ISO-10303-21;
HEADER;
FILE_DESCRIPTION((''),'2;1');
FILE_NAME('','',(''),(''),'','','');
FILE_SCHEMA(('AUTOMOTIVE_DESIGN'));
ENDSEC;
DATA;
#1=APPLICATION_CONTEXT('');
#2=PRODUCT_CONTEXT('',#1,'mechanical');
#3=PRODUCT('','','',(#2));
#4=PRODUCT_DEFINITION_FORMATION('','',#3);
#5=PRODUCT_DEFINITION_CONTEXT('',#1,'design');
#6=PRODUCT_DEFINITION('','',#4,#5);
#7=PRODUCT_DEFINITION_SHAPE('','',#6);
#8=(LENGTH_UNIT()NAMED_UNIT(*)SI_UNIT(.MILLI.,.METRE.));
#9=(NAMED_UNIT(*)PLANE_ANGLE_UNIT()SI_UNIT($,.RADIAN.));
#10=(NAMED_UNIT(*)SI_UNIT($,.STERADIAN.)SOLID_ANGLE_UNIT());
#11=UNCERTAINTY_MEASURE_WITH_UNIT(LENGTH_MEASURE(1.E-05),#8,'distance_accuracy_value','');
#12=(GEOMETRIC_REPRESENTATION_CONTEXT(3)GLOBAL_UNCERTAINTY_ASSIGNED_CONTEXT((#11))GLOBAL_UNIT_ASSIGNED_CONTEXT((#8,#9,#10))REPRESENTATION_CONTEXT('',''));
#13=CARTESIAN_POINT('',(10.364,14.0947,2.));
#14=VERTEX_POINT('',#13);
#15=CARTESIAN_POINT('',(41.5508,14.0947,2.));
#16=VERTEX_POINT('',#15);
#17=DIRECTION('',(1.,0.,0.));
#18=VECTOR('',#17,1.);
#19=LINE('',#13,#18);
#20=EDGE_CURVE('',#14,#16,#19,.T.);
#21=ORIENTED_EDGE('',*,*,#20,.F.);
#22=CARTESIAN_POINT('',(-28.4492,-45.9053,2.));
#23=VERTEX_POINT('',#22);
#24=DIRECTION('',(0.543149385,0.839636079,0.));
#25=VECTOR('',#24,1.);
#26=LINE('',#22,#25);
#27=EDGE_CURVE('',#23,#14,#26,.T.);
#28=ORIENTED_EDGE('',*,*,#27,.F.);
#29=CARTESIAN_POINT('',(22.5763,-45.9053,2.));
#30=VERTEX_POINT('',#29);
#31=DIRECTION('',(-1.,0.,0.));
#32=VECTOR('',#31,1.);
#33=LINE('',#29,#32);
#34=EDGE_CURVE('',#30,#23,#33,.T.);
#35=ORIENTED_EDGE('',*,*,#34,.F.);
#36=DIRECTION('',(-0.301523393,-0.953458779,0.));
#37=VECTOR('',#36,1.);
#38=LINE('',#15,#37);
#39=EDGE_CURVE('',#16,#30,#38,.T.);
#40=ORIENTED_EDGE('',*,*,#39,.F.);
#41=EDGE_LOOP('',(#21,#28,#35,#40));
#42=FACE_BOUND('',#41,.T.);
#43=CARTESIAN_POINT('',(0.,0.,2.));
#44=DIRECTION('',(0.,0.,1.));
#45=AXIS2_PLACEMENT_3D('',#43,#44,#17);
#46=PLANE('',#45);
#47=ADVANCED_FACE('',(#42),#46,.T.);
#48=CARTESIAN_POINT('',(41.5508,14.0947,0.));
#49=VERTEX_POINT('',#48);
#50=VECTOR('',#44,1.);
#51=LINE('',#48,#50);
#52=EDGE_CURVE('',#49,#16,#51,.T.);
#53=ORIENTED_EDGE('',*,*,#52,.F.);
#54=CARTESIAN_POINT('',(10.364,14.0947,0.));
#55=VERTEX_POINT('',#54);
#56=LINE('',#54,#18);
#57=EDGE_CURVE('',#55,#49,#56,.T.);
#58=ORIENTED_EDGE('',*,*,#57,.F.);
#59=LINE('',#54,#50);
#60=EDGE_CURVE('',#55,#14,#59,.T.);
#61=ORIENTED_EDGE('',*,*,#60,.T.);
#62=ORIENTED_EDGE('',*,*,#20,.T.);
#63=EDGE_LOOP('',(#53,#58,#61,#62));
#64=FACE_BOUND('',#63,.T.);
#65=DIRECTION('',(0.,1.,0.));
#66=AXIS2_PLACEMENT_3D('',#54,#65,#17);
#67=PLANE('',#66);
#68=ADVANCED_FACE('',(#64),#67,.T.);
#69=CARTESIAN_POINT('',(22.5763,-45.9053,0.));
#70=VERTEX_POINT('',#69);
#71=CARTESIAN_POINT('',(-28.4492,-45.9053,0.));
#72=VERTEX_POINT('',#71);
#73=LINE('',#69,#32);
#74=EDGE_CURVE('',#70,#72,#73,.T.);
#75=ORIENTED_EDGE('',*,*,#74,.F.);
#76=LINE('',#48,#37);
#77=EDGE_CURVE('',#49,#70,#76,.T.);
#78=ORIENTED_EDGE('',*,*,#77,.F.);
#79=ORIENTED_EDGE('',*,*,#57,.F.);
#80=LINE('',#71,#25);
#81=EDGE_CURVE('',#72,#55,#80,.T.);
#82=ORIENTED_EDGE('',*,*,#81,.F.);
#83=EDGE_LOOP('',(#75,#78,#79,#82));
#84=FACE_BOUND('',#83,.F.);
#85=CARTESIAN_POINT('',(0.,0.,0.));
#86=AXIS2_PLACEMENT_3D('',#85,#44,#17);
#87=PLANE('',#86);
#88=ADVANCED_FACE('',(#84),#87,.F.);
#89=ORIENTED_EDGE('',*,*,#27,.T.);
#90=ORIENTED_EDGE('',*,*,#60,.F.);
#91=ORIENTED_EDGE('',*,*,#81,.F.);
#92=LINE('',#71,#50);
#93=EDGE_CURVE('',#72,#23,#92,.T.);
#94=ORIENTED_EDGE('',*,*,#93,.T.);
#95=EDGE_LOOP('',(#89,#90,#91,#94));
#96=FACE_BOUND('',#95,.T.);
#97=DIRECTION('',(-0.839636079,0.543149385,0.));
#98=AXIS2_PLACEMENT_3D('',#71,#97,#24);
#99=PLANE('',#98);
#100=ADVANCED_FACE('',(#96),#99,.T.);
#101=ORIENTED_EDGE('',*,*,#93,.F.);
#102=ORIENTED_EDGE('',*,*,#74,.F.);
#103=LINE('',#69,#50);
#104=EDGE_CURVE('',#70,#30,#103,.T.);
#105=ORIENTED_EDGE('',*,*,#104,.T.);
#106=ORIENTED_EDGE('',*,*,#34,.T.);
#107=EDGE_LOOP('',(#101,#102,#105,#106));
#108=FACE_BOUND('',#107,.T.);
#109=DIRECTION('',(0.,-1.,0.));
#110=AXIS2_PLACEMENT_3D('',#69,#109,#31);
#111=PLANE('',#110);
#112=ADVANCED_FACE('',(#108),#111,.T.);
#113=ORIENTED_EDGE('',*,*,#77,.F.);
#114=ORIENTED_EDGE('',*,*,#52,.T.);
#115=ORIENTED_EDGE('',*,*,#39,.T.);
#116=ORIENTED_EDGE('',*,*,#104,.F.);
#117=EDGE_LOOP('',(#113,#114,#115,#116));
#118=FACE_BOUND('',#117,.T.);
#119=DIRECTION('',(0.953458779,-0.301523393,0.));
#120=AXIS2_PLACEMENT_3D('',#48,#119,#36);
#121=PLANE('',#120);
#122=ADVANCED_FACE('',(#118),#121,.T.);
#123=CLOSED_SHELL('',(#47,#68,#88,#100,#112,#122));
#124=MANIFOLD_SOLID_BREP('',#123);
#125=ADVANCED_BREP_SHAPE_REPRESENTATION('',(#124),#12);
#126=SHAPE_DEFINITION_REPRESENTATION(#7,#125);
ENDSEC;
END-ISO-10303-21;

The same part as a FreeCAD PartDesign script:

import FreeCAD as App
import Part
import Sketcher
Q = App.Units.Quantity


def add_polygon(sketch, points):
    """Adds a closed chain of lines whose ends are joined by coincident constraints."""
    first, n = sketch.GeometryCount, len(points)
    for a, b in zip(points, points[1:] + points[:1]):
        sketch.addGeometry(Part.LineSegment(App.Vector(*a, 0), App.Vector(*b, 0)), False)
    for i in range(n):
        sketch.addConstraint(Sketcher.Constraint("Coincident", first + i, 2, first + (i + 1) % n, 1))

doc = App.newDocument("Part")
body = doc.addObject("PartDesign::Body", "Body")

sketch1 = body.newObject("Sketcher::SketchObject", "Sketch")
sketch1.AttachmentSupport = (doc.getObject("XY_Plane"), [""])
sketch1.MapMode = "FlatFace"
add_polygon(sketch1, [(42, 14), (10, 14), (-28, -46), (23, -46)])
sketch1.addConstraint(Sketcher.Constraint("Horizontal", 0))
sketch1.addConstraint(Sketcher.Constraint("Horizontal", 2))
sketch1.addConstraint(Sketcher.Constraint("DistanceY", 1, 2, 0, 2, Q("60 mm")))
sketch1.addConstraint(Sketcher.Constraint("DistanceX", 1, 2, 3, 2, Q("70 mm")))
sketch1.addConstraint(Sketcher.Constraint("Angle", 3, Q("72.4509 deg")))
sketch1.addConstraint(Sketcher.Constraint("DistanceX", 0, 2, 0, 1, Q("31.1868 mm")))
sketch1.addConstraint(Sketcher.Constraint("DistanceX", -1, 1, 0, 2, Q("10.364 mm")))
sketch1.addConstraint(Sketcher.Constraint("DistanceY", -1, 1, 0, 2, Q("14.0947 mm")))
pad1 = body.newObject("PartDesign::Pad", "Pad")
pad1.Profile = sketch1
pad1.Length = 2

doc.recompute()
